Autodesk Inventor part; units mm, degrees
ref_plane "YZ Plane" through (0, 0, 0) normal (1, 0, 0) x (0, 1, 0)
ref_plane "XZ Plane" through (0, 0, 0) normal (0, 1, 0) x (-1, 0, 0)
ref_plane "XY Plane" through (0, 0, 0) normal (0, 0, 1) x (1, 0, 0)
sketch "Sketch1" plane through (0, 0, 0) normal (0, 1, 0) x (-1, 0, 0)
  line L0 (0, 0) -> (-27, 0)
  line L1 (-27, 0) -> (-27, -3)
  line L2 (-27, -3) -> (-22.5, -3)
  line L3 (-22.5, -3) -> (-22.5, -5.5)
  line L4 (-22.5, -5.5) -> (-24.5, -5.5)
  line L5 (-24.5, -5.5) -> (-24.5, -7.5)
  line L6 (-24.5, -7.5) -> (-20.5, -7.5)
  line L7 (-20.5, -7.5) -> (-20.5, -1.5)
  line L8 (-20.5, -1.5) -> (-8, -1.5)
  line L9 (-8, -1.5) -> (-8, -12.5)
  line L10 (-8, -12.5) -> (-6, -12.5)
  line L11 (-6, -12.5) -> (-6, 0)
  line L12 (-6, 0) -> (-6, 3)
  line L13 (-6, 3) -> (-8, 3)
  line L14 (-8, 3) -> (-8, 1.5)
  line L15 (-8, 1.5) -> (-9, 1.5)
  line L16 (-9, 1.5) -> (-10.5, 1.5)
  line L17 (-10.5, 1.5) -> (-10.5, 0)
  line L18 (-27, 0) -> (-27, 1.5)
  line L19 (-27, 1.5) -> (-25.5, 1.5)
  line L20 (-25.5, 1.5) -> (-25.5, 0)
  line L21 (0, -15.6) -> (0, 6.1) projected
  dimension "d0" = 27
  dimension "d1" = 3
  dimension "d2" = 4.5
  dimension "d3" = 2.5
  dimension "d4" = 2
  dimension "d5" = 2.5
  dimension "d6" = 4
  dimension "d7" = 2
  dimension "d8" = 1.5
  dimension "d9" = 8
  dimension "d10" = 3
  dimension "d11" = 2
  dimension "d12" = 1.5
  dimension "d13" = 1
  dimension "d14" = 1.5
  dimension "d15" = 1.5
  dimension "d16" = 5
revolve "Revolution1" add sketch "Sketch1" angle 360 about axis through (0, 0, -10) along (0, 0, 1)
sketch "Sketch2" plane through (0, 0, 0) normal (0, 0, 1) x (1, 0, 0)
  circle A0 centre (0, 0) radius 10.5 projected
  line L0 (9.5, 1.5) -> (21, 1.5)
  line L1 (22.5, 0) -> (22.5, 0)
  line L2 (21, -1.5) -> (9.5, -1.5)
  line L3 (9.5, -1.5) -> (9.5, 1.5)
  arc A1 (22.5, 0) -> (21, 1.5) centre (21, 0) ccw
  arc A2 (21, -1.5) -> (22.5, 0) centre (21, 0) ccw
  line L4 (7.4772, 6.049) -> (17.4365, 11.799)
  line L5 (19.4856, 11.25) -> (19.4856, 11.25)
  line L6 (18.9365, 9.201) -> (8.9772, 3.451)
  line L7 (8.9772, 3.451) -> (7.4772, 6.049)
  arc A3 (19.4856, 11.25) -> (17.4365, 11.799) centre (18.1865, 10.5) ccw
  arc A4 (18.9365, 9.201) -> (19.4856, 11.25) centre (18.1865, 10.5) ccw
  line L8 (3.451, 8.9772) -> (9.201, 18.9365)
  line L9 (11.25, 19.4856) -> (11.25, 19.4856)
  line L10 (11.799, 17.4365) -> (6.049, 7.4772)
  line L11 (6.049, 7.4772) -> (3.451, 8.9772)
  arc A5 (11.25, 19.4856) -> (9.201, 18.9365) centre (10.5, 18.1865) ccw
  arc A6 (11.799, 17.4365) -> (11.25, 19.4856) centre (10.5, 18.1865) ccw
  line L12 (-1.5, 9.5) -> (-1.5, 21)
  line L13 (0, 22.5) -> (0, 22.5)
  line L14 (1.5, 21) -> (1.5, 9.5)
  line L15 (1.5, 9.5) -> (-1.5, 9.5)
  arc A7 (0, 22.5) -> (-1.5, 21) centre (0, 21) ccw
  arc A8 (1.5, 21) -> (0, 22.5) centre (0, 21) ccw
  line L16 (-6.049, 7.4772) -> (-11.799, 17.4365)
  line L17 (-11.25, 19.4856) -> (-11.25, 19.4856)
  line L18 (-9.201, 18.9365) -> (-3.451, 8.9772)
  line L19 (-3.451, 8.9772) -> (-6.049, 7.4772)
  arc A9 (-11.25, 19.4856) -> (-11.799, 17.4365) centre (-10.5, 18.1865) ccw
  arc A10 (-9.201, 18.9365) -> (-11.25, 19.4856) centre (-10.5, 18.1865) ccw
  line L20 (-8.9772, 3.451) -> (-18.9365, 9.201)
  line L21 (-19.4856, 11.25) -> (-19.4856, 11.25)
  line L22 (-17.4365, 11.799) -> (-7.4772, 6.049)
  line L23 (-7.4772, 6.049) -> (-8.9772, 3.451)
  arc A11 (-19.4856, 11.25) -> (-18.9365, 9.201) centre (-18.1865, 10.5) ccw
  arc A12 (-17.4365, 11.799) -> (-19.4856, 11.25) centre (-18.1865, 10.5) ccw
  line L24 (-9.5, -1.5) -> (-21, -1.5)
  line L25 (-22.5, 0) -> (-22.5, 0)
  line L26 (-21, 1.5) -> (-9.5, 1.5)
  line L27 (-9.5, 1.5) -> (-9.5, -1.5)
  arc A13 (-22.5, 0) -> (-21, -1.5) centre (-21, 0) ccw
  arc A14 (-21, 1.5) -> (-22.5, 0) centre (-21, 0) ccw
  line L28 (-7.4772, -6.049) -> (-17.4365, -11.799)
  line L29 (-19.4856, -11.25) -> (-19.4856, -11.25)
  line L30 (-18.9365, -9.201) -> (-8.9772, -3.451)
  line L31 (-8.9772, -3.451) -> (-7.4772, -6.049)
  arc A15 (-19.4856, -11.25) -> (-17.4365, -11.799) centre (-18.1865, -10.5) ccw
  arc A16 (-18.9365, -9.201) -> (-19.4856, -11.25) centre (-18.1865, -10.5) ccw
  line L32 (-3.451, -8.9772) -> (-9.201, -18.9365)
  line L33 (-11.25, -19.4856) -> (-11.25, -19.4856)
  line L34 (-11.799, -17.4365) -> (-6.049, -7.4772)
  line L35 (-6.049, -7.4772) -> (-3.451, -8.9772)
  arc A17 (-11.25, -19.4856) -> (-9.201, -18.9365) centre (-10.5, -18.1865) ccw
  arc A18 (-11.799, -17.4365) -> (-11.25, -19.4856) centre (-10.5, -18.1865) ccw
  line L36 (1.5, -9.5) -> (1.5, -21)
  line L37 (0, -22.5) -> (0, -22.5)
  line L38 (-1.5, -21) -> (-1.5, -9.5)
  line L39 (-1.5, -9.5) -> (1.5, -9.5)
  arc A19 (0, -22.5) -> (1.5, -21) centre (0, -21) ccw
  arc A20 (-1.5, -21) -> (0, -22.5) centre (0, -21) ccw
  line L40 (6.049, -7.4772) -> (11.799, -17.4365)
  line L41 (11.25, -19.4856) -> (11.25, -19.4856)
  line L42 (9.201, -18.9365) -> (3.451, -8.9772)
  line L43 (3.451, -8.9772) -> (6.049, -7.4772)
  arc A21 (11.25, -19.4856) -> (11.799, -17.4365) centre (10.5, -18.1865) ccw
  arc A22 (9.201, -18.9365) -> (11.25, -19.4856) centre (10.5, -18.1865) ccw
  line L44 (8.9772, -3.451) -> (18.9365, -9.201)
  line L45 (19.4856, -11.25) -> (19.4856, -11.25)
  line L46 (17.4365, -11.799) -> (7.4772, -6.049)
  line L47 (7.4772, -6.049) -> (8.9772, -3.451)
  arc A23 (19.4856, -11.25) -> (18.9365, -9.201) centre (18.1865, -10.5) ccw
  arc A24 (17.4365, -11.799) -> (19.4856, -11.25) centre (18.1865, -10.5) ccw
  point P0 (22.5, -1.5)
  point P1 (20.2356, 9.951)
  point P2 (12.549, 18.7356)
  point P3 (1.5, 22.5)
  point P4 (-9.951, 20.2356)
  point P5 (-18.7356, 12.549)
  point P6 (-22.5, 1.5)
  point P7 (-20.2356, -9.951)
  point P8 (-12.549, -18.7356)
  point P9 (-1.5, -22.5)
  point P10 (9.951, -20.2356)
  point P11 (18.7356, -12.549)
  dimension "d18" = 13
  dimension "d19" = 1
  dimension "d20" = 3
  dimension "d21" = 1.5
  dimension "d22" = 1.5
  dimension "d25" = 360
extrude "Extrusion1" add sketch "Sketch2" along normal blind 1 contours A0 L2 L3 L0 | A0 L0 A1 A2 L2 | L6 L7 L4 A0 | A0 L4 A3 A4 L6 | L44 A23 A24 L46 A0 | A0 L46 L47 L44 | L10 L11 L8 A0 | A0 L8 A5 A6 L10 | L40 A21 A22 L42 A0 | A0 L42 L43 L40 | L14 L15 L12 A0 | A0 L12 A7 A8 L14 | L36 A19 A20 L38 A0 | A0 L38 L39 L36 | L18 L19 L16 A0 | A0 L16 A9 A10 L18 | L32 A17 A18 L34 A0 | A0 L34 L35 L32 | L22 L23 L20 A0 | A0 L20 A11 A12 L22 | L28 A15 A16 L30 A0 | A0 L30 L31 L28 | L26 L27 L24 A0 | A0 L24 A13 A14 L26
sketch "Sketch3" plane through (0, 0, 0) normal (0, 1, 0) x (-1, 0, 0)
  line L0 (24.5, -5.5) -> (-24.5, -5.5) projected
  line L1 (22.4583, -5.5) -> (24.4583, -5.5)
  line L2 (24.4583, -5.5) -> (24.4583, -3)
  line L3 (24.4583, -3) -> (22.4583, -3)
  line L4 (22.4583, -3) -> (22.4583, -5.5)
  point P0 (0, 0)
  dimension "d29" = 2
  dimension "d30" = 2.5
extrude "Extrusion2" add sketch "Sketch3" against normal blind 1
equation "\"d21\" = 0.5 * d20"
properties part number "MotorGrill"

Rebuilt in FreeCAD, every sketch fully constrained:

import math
import FreeCAD as App
import Part
import Sketcher
Q = App.Units.Quantity


def add_polygon(sketch, points):
    """Adds a closed chain of lines whose ends are joined by coincident constraints."""
    first, n = sketch.GeometryCount, len(points)
    for a, b in zip(points, points[1:] + points[:1]):
        sketch.addGeometry(Part.LineSegment(App.Vector(*a, 0), App.Vector(*b, 0)), False)
    for i in range(n):
        sketch.addConstraint(Sketcher.Constraint("Coincident", first + i, 2, first + (i + 1) % n, 1))

doc = App.newDocument("Part")
body = doc.addObject("PartDesign::Body", "Body")

# Sketch on XZ plane
sketch1 = body.newObject("Sketcher::SketchObject", "Sketch")
sketch1.AttachmentSupport = (doc.getObject("XZ_Plane"), [""])
sketch1.MapMode = "FlatFace"
add_polygon(sketch1, [(6, -12.5), (6, 3), (8, 3), (8, 1.5), (10.5, 1.5), (10.5, 0), (25.5, 0), (25.5, 1.5), (27, 1.5), (27, -3), (22.5, -3), (22.5, -5.5), (24.5, -5.5), (24.5, -7.5), (20.5, -7.5), (20.5, -1.5), (8, -1.5), (8, -12.5)])  # lines 0-17
sketch1.addConstraint([
    Sketcher.Constraint("Vertical", 0),
    Sketcher.Constraint("Horizontal", 1),
    Sketcher.Constraint("Vertical", 2),
    Sketcher.Constraint("Horizontal", 3),
    Sketcher.Constraint("Vertical", 4),
    Sketcher.Constraint("Horizontal", 5),
    Sketcher.Constraint("Vertical", 6),
    Sketcher.Constraint("Horizontal", 7),
    Sketcher.Constraint("Vertical", 8),
    Sketcher.Constraint("Horizontal", 9),
    Sketcher.Constraint("Vertical", 10),
    Sketcher.Constraint("Horizontal", 11),
    Sketcher.Constraint("Vertical", 12),
    Sketcher.Constraint("Horizontal", 13),
    Sketcher.Constraint("Vertical", 14),
    Sketcher.Constraint("Horizontal", 15),
    Sketcher.Constraint("Vertical", 16),
    Sketcher.Constraint("Horizontal", 17),
    Sketcher.Constraint("Symmetric", 2, 2, 15, 2, -1),
    Sketcher.Constraint("PointOnObject", 4, 2, -1),
    Sketcher.Constraint("Horizontal", 3, 2, 6, 2),
    Sketcher.Constraint("Equal", 1, 11),
    Sketcher.Constraint("Equal", 7, 2),
    Sketcher.Constraint("Equal", 2, 4),
    Sketcher.Constraint("Equal", 9, 8),
    Sketcher.Constraint("Equal", 3, 10),
    Sketcher.Constraint("Equal", 17, 12),
    Sketcher.Constraint("DistanceX", 1, 1, 1, 2, Q("2 mm")),
    Sketcher.Constraint("DistanceX", 13, 2, 13, 1, Q("4 mm")),
    Sketcher.Constraint("DistanceX", 3, 1, 3, 2, Q("2.5 mm")),
    Sketcher.Constraint("DistanceX", 7, 1, 7, 2, Q("1.5 mm")),
    Sketcher.Constraint("DistanceX", 9, 2, 9, 1, Q("4.5 mm")),
    Sketcher.Constraint("DistanceX", -1, 1, 1, 2, Q("8 mm")),
    Sketcher.Constraint("DistanceX", -1, 1, 7, 2, Q("27 mm")),
    Sketcher.Constraint("DistanceY", 16, 2, 13, 2, Q("5 mm")),
])
revolution = body.newObject("PartDesign::Revolution", "Revolution")
revolution.Profile = sketch1
revolution.ReferenceAxis = (sketch1, ["V_Axis"])
revolution.Angle = 360

# Sketch on XY plane
sketch2 = body.newObject("Sketcher::SketchObject", "Sketch001")
sketch2.AttachmentSupport = (doc.getObject("XY_Plane"), [""])
sketch2.MapMode = "FlatFace"
sketch2.addGeometry([
    Part.LineSegment(App.Vector(9.5, -1.5, 0), App.Vector(21, -1.5, 0)),  # 0
    Part.ArcOfCircle(Part.Circle(App.Vector(21, 0, 0), App.Vector(0, 0, 1), 1.5), math.radians(-90), math.radians(90)),  # 1
    Part.LineSegment(App.Vector(21, 1.5, 0), App.Vector(9.5, 1.5, 0)),  # 2
    Part.LineSegment(App.Vector(9.5, 1.5, 0), App.Vector(9.5, -1.5, 0)),  # 3
    Part.LineSegment(App.Vector(9, 3.5, 0), App.Vector(18.9, 9.2, 0)),  # 4
    Part.ArcOfCircle(Part.Circle(App.Vector(18.2, 10.5, 0), App.Vector(0, 0, 1), 1.5), math.radians(-60), math.radians(30)),  # 5
    Part.ArcOfCircle(Part.Circle(App.Vector(18.2, 10.5, 0), App.Vector(0, 0, 1), 1.5), math.radians(30), math.radians(120)),  # 6
    Part.LineSegment(App.Vector(17.4, 11.8, 0), App.Vector(7.5, 6, 0)),  # 7
    Part.LineSegment(App.Vector(7.5, 6, 0), App.Vector(9, 3.5, 0)),  # 8
    Part.LineSegment(App.Vector(18.9, -9.2, 0), App.Vector(9, -3.5, 0)),  # 9
    Part.LineSegment(App.Vector(9, -3.5, 0), App.Vector(7.5, -6, 0)),  # 10
    Part.LineSegment(App.Vector(7.5, -6, 0), App.Vector(17.4, -11.8, 0)),  # 11
    Part.ArcOfCircle(Part.Circle(App.Vector(18.2, -10.5, 0), App.Vector(0, 0, 1), 1.5), math.radians(-120), math.radians(-30)),  # 12
    Part.ArcOfCircle(Part.Circle(App.Vector(18.2, -10.5, 0), App.Vector(0, 0, 1), 1.5), math.radians(-30), math.radians(60)),  # 13
    Part.LineSegment(App.Vector(6, 7.5, 0), App.Vector(11.8, 17.4, 0)),  # 14
    Part.ArcOfCircle(Part.Circle(App.Vector(10.5, 18.2, 0), App.Vector(0, 0, 1), 1.5), math.radians(-30), math.radians(60)),  # 15
    Part.ArcOfCircle(Part.Circle(App.Vector(10.5, 18.2, 0), App.Vector(0, 0, 1), 1.5), math.radians(60), math.radians(150)),  # 16
    Part.LineSegment(App.Vector(9.2, 18.9, 0), App.Vector(3.5, 9, 0)),  # 17
    Part.LineSegment(App.Vector(3.5, 9, 0), App.Vector(6, 7.5, 0)),  # 18
    Part.LineSegment(App.Vector(11.8, -17.4, 0), App.Vector(6, -7.5, 0)),  # 19
    Part.LineSegment(App.Vector(6, -7.5, 0), App.Vector(3.5, -9, 0)),  # 20
    Part.LineSegment(App.Vector(3.5, -9, 0), App.Vector(9.2, -18.9, 0)),  # 21
    Part.ArcOfCircle(Part.Circle(App.Vector(10.5, -18.2, 0), App.Vector(0, 0, 1), 1.5), math.radians(-150), math.radians(-60)),  # 22
    Part.ArcOfCircle(Part.Circle(App.Vector(10.5, -18.2, 0), App.Vector(0, 0, 1), 1.5), math.radians(-60), math.radians(30)),  # 23
    Part.LineSegment(App.Vector(1.5, 9.5, 0), App.Vector(1.5, 21, 0)),  # 24
    Part.ArcOfCircle(Part.Circle(App.Vector(0, 21, 0), App.Vector(0, 0, 1), 1.5), math.radians(0), math.radians(180)),  # 25
    Part.LineSegment(App.Vector(-1.5, 21, 0), App.Vector(-1.5, 9.5, 0)),  # 26
    Part.LineSegment(App.Vector(-1.5, 9.5, 0), App.Vector(1.5, 9.5, 0)),  # 27
    Part.LineSegment(App.Vector(1.5, -21, 0), App.Vector(1.5, -9.5, 0)),  # 28
    Part.LineSegment(App.Vector(1.5, -9.5, 0), App.Vector(-1.5, -9.5, 0)),  # 29
    Part.LineSegment(App.Vector(-1.5, -9.5, 0), App.Vector(-1.5, -21, 0)),  # 30
    Part.ArcOfCircle(Part.Circle(App.Vector(0, -21, 0), App.Vector(0, 0, 1), 1.5), math.radians(180), math.radians(360)),  # 31
    Part.LineSegment(App.Vector(-3.5, 9, 0), App.Vector(-9.2, 18.9, 0)),  # 32
    Part.ArcOfCircle(Part.Circle(App.Vector(-10.5, 18.2, 0), App.Vector(0, 0, 1), 1.5), math.radians(30), math.radians(120)),  # 33
    Part.ArcOfCircle(Part.Circle(App.Vector(-10.5, 18.2, 0), App.Vector(0, 0, 1), 1.5), math.radians(120), math.radians(210)),  # 34
    Part.LineSegment(App.Vector(-11.8, 17.4, 0), App.Vector(-6, 7.5, 0)),  # 35
    Part.LineSegment(App.Vector(-6, 7.5, 0), App.Vector(-3.5, 9, 0)),  # 36
    Part.LineSegment(App.Vector(-9.2, -18.9, 0), App.Vector(-3.5, -9, 0)),  # 37
    Part.LineSegment(App.Vector(-3.5, -9, 0), App.Vector(-6, -7.5, 0)),  # 38
    Part.LineSegment(App.Vector(-6, -7.5, 0), App.Vector(-11.8, -17.4, 0)),  # 39
    Part.ArcOfCircle(Part.Circle(App.Vector(-10.5, -18.2, 0), App.Vector(0, 0, 1), 1.5), math.radians(150), math.radians(240)),  # 40
    Part.ArcOfCircle(Part.Circle(App.Vector(-10.5, -18.2, 0), App.Vector(0, 0, 1), 1.5), math.radians(-120), math.radians(-30)),  # 41
    Part.LineSegment(App.Vector(-7.5, 6, 0), App.Vector(-17.4, 11.8, 0)),  # 42
    Part.ArcOfCircle(Part.Circle(App.Vector(-18.2, 10.5, 0), App.Vector(0, 0, 1), 1.5), math.radians(60), math.radians(150)),  # 43
    Part.ArcOfCircle(Part.Circle(App.Vector(-18.2, 10.5, 0), App.Vector(0, 0, 1), 1.5), math.radians(150), math.radians(240)),  # 44
    Part.LineSegment(App.Vector(-18.9, 9.2, 0), App.Vector(-9, 3.5, 0)),  # 45
    Part.LineSegment(App.Vector(-9, 3.5, 0), App.Vector(-7.5, 6, 0)),  # 46
    Part.LineSegment(App.Vector(-17.4, -11.8, 0), App.Vector(-7.5, -6, 0)),  # 47
    Part.LineSegment(App.Vector(-7.5, -6, 0), App.Vector(-9, -3.5, 0)),  # 48
    Part.LineSegment(App.Vector(-9, -3.5, 0), App.Vector(-18.9, -9.2, 0)),  # 49
    Part.ArcOfCircle(Part.Circle(App.Vector(-18.2, -10.5, 0), App.Vector(0, 0, 1), 1.5), math.radians(120), math.radians(210)),  # 50
    Part.ArcOfCircle(Part.Circle(App.Vector(-18.2, -10.5, 0), App.Vector(0, 0, 1), 1.5), math.radians(-150), math.radians(-60)),  # 51
    Part.LineSegment(App.Vector(-9.5, 1.5, 0), App.Vector(-21, 1.5, 0)),  # 52
    Part.ArcOfCircle(Part.Circle(App.Vector(-21, 0, 0), App.Vector(0, 0, 1), 1.5), math.radians(90), math.radians(270)),  # 53
    Part.LineSegment(App.Vector(-21, -1.5, 0), App.Vector(-9.5, -1.5, 0)),  # 54
    Part.LineSegment(App.Vector(-9.5, -1.5, 0), App.Vector(-9.5, 1.5, 0)),  # 55
], False)
sketch2.addConstraint([
    Sketcher.Constraint("Tangent", 0, 2, 1, 1),
    Sketcher.Constraint("Tangent", 1, 2, 2, 1),
    Sketcher.Constraint("Coincident", 2, 2, 3, 1),
    Sketcher.Constraint("Coincident", 3, 2, 0, 1),
    Sketcher.Constraint("Tangent", 4, 2, 5, 1),
    Sketcher.Constraint("Tangent", 5, 2, 6, 1),
    Sketcher.Constraint("Tangent", 6, 2, 7, 1),
    Sketcher.Constraint("Coincident", 7, 2, 8, 1),
    Sketcher.Constraint("Coincident", 8, 2, 4, 1),
    Sketcher.Constraint("Coincident", 9, 2, 10, 1),
    Sketcher.Constraint("Coincident", 10, 2, 11, 1),
    Sketcher.Constraint("Tangent", 11, 2, 12, 1),
    Sketcher.Constraint("Tangent", 12, 2, 13, 1),
    Sketcher.Constraint("Tangent", 13, 2, 9, 1),
    Sketcher.Constraint("Tangent", 14, 2, 15, 1),
    Sketcher.Constraint("Tangent", 15, 2, 16, 1),
    Sketcher.Constraint("Tangent", 16, 2, 17, 1),
    Sketcher.Constraint("Coincident", 17, 2, 18, 1),
    Sketcher.Constraint("Coincident", 18, 2, 14, 1),
    Sketcher.Constraint("Coincident", 19, 2, 20, 1),
    Sketcher.Constraint("Coincident", 20, 2, 21, 1),
    Sketcher.Constraint("Tangent", 21, 2, 22, 1),
    Sketcher.Constraint("Tangent", 22, 2, 23, 1),
    Sketcher.Constraint("Tangent", 23, 2, 19, 1),
    Sketcher.Constraint("Tangent", 24, 2, 25, 1),
    Sketcher.Constraint("Tangent", 25, 2, 26, 1),
    Sketcher.Constraint("Coincident", 26, 2, 27, 1),
    Sketcher.Constraint("Coincident", 27, 2, 24, 1),
    Sketcher.Constraint("Coincident", 28, 2, 29, 1),
    Sketcher.Constraint("Coincident", 29, 2, 30, 1),
    Sketcher.Constraint("Tangent", 30, 2, 31, 1),
    Sketcher.Constraint("Tangent", 31, 2, 28, 1),
    Sketcher.Constraint("Tangent", 32, 2, 33, 1),
    Sketcher.Constraint("Tangent", 33, 2, 34, 1),
    Sketcher.Constraint("Tangent", 34, 2, 35, 1),
    Sketcher.Constraint("Coincident", 35, 2, 36, 1),
    Sketcher.Constraint("Coincident", 36, 2, 32, 1),
    Sketcher.Constraint("Coincident", 37, 2, 38, 1),
    Sketcher.Constraint("Coincident", 38, 2, 39, 1),
    Sketcher.Constraint("Tangent", 39, 2, 40, 1),
    Sketcher.Constraint("Tangent", 40, 2, 41, 1),
    Sketcher.Constraint("Tangent", 41, 2, 37, 1),
    Sketcher.Constraint("Tangent", 42, 2, 43, 1),
    Sketcher.Constraint("Tangent", 43, 2, 44, 1),
    Sketcher.Constraint("Tangent", 44, 2, 45, 1),
    Sketcher.Constraint("Coincident", 45, 2, 46, 1),
    Sketcher.Constraint("Coincident", 46, 2, 42, 1),
    Sketcher.Constraint("Coincident", 47, 2, 48, 1),
    Sketcher.Constraint("Coincident", 48, 2, 49, 1),
    Sketcher.Constraint("Tangent", 49, 2, 50, 1),
    Sketcher.Constraint("Tangent", 50, 2, 51, 1),
    Sketcher.Constraint("Tangent", 51, 2, 47, 1),
    Sketcher.Constraint("Tangent", 52, 2, 53, 1),
    Sketcher.Constraint("Tangent", 53, 2, 54, 1),
    Sketcher.Constraint("Coincident", 54, 2, 55, 1),
    Sketcher.Constraint("Coincident", 55, 2, 52, 1),
    Sketcher.Constraint("Horizontal", 0),
    Sketcher.Constraint("Horizontal", 2),
    Sketcher.Constraint("Vertical", 3),
    Sketcher.Constraint("Vertical", 24),
    Sketcher.Constraint("Vertical", 26),
    Sketcher.Constraint("Horizontal", 27),
    Sketcher.Constraint("Vertical", 28),
    Sketcher.Constraint("Horizontal", 29),
    Sketcher.Constraint("Vertical", 30),
    Sketcher.Constraint("Horizontal", 52),
    Sketcher.Constraint("Horizontal", 54),
    Sketcher.Constraint("Vertical", 55),
    Sketcher.Constraint("Equal", 1, 5),
    Sketcher.Constraint("Equal", 5, 6),
    Sketcher.Constraint("Equal", 6, 12),
    Sketcher.Constraint("Equal", 12, 13),
    Sketcher.Constraint("Equal", 13, 15),
    Sketcher.Constraint("Equal", 15, 16),
    Sketcher.Constraint("Equal", 16, 22),
    Sketcher.Constraint("Equal", 22, 23),
    Sketcher.Constraint("Equal", 23, 25),
    Sketcher.Constraint("Equal", 25, 31),
    Sketcher.Constraint("Equal", 31, 33),
    Sketcher.Constraint("Equal", 33, 34),
    Sketcher.Constraint("Equal", 34, 40),
    Sketcher.Constraint("Equal", 40, 41),
    Sketcher.Constraint("Equal", 41, 43),
    Sketcher.Constraint("Equal", 43, 44),
    Sketcher.Constraint("Equal", 44, 50),
    Sketcher.Constraint("Equal", 50, 51),
    Sketcher.Constraint("Equal", 51, 53),
    Sketcher.Constraint("Symmetric", 25, 3, 31, 3, -1, 1),
    Sketcher.Constraint("Symmetric", 22, 3, 33, 3, -1, 1),
    Sketcher.Constraint("Symmetric", 15, 3, 40, 3, -1, 1),
    Sketcher.Constraint("Symmetric", 12, 3, 43, 3, -1, 1),
    Sketcher.Constraint("Symmetric", 5, 3, 50, 3, -1, 1),
    Sketcher.Constraint("Symmetric", 1, 3, 53, 3, -1, 1),
    Sketcher.Constraint("Symmetric", 19, 2, 35, 2, -1, 1),
    Sketcher.Constraint("Symmetric", 20, 2, 36, 2, -1, 1),
    Sketcher.Constraint("Symmetric", 17, 2, 37, 2, -1, 1),
    Sketcher.Constraint("Symmetric", 18, 2, 38, 2, -1, 1),
    Sketcher.Constraint("Symmetric", 9, 2, 45, 2, -1, 1),
    Sketcher.Constraint("Symmetric", 10, 2, 46, 2, -1, 1),
    Sketcher.Constraint("Symmetric", 7, 2, 47, 2, -1, 1),
    Sketcher.Constraint("Symmetric", 8, 2, 48, 2, -1, 1),
    Sketcher.Constraint("Symmetric", 15, 3, 33, 3, -2),
    Sketcher.Constraint("Symmetric", 5, 3, 43, 3, -2),
    Sketcher.Constraint("Symmetric", 18, 2, 35, 2, -2),
    Sketcher.Constraint("Symmetric", 17, 2, 36, 2, -2),
    Sketcher.Constraint("Symmetric", 8, 2, 45, 2, -2),
    Sketcher.Constraint("Symmetric", 7, 2, 46, 2, -2),
    Sketcher.Constraint("Symmetric", 3, 2, 54, 2, -2),
    Sketcher.Constraint("Symmetric", 27, 2, 28, 2, -1),
    Sketcher.Constraint("Parallel", 4, 7),
    Sketcher.Constraint("Perpendicular", 7, 8),
    Sketcher.Constraint("Perpendicular", 11, 14),
    Sketcher.Constraint("Parallel", 14, 17),
    Sketcher.Constraint("Perpendicular", 17, 18),
    Sketcher.Constraint("Horizontal", 15, 2, 33, 2),
    Sketcher.Constraint("Horizontal", 22, 2, 40, 2),
    Sketcher.Constraint("Horizontal", 5, 2, 43, 2),
    Sketcher.Constraint("Horizontal", 12, 2, 50, 2),
    Sketcher.Constraint("Vertical", 5, 2, 12, 2),
    Sketcher.Constraint("Vertical", 15, 2, 22, 2),
    Sketcher.Constraint("Equal", 54, 24),
    Sketcher.Constraint("Equal", 11, 14),
    Sketcher.Constraint("Radius", 1, Q("1.5 mm")),
    Sketcher.Constraint("Angle", 4, Q("30 deg")),
    Sketcher.Constraint("DistanceX", 0, 1, 0, 2, Q("11.5 mm")),
    Sketcher.Constraint("DistanceX", -1, 1, 1, 3, Q("21 mm")),
    Sketcher.Constraint("DistanceY", -1, 1, 25, 3, Q("21 mm")),
    Sketcher.Constraint("Distance", 4, Q("11.5 mm")),
    Sketcher.Constraint("DistanceY", -1, 1, 5, 3, Q("10.5 mm")),
    Sketcher.Constraint("DistanceX", -1, 1, 15, 3, Q("10.5 mm")),
    Sketcher.Constraint("DistanceY", -1, 1, 5, 2, Q("11.25 mm")),
    Sketcher.Constraint("DistanceX", -1, 1, 15, 2, Q("11.25 mm")),
    Sketcher.Constraint("DistanceX", -1, 1, 5, 3, Q("18.1865 mm")),
    Sketcher.Constraint("DistanceY", -1, 1, 15, 3, Q("18.1865 mm")),
])
pad1 = body.newObject("PartDesign::Pad", "Pad")
pad1.Profile = sketch2
pad1.Length = 1

# Sketch on XZ plane
sketch3 = body.newObject("Sketcher::SketchObject", "Sketch002")
sketch3.AttachmentSupport = (doc.getObject("XZ_Plane"), [""])
sketch3.MapMode = "FlatFace"
add_polygon(sketch3, [(-22.5, -5.5), (-24.5, -5.5), (-24.5, -3), (-22.5, -3)])  # lines 0-3
sketch3.addConstraint([
    Sketcher.Constraint("Horizontal", 0),
    Sketcher.Constraint("Vertical", 1),
    Sketcher.Constraint("Horizontal", 2),
    Sketcher.Constraint("Vertical", 3),
    Sketcher.Constraint("DistanceX", 0, 2, 0, 1, Q("2 mm")),
    Sketcher.Constraint("DistanceY", 1, 1, 1, 2, Q("2.5 mm")),
    Sketcher.Constraint("DistanceY", 1, 2, -1, 1, Q("3 mm")),
    Sketcher.Constraint("DistanceX", 0, 2, -1, 1, Q("24.4583 mm")),
])
pad2 = body.newObject("PartDesign::Pad", "Pad001")
pad2.Profile = sketch3
pad2.Length = 1

doc.recompute()
